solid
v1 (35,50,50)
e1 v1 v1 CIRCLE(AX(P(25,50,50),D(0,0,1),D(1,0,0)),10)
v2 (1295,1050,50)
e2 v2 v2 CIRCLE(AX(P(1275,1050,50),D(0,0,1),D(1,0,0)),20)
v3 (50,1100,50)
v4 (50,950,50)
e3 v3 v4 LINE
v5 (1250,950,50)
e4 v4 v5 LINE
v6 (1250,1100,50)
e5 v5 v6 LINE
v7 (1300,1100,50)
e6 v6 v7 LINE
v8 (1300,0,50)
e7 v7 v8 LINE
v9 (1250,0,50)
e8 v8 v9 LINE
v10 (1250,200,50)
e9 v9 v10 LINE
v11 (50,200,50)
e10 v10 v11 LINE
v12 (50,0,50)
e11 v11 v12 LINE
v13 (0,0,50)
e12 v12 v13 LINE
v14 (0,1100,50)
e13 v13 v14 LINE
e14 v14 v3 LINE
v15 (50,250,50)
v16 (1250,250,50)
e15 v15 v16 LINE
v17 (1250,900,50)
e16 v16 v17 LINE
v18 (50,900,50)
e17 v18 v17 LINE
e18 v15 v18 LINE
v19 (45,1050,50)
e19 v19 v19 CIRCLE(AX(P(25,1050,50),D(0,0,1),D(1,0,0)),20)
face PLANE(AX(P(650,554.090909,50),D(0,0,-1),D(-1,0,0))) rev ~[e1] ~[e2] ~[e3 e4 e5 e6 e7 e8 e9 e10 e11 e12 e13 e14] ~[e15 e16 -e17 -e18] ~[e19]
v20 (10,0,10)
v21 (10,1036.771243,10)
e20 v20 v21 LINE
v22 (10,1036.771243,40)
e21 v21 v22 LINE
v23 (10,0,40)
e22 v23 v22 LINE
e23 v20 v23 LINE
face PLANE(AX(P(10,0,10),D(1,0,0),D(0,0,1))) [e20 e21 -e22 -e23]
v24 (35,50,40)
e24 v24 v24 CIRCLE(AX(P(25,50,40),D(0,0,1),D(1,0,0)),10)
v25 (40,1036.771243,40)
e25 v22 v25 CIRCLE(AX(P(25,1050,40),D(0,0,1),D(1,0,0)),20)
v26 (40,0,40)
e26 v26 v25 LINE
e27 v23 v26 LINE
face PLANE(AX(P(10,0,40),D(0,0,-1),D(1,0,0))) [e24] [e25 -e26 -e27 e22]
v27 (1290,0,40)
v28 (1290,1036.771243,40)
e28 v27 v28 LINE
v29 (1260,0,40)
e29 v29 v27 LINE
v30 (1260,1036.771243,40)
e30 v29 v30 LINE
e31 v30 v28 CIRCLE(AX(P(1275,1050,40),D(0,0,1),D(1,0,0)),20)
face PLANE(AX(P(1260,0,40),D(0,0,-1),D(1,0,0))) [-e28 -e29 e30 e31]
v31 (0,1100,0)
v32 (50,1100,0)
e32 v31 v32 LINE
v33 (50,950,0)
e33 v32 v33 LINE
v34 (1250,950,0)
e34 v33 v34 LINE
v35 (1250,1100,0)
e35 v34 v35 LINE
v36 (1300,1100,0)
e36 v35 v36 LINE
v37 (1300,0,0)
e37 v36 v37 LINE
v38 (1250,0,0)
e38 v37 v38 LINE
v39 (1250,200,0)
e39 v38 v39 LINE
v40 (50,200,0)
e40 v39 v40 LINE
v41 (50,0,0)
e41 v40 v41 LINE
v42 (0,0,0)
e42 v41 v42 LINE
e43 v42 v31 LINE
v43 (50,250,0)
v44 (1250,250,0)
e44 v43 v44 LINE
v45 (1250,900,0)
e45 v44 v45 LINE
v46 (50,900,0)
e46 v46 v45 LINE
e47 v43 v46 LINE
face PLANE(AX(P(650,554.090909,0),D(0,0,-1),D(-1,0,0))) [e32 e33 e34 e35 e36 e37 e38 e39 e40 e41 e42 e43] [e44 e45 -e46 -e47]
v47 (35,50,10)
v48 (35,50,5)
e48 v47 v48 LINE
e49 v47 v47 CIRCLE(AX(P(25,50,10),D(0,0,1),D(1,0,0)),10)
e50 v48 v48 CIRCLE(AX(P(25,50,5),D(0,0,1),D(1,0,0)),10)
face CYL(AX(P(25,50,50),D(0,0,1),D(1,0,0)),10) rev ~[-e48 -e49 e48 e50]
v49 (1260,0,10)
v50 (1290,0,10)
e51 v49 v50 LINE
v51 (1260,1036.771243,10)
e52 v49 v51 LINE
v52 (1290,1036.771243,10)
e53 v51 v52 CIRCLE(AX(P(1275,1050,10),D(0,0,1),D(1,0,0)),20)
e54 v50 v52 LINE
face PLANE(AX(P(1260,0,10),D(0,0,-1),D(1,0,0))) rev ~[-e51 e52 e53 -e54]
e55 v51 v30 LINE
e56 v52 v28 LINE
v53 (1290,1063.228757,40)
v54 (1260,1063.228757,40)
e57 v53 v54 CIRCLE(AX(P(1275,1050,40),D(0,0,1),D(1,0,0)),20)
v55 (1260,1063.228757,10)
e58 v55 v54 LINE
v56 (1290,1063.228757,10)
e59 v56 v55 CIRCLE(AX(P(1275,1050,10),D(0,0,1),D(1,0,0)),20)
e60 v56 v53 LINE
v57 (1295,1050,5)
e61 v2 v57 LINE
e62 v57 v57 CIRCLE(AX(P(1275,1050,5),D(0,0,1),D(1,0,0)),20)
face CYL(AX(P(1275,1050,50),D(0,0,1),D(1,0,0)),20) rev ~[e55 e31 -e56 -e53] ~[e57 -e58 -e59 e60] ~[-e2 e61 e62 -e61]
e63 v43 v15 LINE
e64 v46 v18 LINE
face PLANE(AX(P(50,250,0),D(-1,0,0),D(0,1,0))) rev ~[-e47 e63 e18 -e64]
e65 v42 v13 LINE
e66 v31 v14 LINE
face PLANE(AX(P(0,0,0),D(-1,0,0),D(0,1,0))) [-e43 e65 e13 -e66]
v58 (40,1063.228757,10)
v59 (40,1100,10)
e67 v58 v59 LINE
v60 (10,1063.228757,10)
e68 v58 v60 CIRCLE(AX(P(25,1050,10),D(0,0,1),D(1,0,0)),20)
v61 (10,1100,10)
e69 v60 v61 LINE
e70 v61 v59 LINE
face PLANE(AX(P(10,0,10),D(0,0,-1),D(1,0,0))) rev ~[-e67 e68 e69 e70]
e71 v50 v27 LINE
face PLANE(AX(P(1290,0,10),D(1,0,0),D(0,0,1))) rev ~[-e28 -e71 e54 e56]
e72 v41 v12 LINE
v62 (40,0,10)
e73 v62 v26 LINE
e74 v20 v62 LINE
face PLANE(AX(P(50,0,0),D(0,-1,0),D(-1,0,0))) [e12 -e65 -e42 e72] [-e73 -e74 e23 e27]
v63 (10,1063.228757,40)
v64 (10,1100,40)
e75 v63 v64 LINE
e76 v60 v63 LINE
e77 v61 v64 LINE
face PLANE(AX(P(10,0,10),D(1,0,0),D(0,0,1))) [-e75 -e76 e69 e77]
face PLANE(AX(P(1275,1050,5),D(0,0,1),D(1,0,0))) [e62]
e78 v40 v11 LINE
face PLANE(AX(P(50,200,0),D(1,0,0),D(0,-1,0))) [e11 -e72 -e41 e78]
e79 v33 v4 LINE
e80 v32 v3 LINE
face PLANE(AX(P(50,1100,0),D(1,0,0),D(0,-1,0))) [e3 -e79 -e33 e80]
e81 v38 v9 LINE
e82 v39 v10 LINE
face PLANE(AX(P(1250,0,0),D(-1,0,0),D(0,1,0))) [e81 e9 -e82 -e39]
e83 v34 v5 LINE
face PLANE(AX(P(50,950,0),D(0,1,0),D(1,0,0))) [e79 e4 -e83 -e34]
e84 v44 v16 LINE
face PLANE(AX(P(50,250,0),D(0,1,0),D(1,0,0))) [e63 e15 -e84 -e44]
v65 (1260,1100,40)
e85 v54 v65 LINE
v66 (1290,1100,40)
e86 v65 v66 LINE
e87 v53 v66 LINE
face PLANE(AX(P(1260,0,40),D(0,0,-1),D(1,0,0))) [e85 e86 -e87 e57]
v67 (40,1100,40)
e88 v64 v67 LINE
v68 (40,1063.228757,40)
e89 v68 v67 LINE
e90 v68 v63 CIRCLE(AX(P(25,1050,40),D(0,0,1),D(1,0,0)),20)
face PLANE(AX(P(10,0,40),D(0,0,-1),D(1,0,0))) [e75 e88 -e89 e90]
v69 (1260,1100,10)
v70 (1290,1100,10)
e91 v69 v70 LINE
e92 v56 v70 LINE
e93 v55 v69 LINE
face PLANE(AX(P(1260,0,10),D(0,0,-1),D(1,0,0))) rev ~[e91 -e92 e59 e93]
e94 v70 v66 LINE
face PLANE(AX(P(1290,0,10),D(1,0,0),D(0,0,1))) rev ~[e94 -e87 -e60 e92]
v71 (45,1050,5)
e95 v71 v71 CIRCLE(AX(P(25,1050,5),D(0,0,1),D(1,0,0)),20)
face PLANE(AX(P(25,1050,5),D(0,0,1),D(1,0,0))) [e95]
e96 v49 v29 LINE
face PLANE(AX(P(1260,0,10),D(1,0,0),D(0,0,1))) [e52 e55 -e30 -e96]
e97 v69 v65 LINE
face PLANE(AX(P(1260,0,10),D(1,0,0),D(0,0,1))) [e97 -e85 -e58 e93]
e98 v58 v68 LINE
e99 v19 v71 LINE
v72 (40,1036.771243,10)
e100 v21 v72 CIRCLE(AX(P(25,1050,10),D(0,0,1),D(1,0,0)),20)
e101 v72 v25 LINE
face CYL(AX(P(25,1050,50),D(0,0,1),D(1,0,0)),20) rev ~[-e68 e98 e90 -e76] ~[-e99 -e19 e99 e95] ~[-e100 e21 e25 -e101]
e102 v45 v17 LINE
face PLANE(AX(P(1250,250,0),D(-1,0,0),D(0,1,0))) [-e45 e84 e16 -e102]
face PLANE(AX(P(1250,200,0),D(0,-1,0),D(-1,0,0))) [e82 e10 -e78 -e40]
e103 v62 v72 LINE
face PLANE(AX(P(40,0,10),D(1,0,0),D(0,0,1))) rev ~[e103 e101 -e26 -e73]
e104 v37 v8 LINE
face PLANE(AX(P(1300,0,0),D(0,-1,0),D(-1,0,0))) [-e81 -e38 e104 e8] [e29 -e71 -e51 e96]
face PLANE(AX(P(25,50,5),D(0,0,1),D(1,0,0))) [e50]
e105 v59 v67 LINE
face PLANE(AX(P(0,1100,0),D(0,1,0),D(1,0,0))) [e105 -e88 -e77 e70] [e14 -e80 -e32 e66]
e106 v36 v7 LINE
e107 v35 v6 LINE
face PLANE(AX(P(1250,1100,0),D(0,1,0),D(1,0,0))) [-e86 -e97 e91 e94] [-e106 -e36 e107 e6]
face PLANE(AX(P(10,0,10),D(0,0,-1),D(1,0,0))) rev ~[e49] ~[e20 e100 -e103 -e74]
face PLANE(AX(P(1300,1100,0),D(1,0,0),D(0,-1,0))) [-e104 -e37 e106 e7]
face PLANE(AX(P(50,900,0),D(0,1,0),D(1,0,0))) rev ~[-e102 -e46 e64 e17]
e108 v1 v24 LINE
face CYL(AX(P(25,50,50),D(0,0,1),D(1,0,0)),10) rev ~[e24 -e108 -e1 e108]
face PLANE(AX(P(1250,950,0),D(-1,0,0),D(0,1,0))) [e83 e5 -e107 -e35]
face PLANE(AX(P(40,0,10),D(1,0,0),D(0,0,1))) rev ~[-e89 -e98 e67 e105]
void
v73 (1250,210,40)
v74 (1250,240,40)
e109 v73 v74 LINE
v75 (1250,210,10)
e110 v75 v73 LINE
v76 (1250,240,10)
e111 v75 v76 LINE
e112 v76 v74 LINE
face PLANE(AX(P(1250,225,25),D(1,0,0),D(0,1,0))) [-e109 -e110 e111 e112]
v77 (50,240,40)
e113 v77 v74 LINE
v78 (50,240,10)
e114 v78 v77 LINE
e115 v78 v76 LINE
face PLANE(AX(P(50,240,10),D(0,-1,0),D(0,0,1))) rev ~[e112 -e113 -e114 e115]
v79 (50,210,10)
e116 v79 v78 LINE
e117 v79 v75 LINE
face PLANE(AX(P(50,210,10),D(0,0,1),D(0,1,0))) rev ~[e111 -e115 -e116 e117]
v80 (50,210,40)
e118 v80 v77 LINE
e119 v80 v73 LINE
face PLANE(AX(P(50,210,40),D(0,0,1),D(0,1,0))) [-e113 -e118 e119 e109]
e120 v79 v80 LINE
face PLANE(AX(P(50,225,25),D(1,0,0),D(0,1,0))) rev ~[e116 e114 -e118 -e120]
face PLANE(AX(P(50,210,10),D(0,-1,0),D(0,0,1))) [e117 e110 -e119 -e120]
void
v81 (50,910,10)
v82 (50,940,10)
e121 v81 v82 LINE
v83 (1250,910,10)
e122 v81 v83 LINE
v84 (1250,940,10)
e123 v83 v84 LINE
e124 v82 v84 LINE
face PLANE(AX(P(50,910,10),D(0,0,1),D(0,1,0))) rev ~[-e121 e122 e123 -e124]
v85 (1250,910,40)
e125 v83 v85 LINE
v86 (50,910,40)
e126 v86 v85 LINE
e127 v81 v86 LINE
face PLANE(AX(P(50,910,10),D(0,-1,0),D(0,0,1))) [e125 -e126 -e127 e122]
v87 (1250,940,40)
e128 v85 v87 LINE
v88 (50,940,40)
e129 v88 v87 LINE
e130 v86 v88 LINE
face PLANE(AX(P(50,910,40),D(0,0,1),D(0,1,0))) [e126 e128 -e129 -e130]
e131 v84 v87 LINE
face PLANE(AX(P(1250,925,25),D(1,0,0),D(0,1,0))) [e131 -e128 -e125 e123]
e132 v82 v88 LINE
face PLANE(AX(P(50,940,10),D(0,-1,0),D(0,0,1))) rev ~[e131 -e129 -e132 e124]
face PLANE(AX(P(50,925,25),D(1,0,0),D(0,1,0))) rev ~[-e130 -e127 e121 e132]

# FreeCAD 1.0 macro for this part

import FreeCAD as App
import Part
import Sketcher
from FreeCAD import Vector
Q = App.Units.Quantity


def add_polygon(sketch, points):
    """Adds a closed chain of lines whose ends are joined by coincident constraints."""
    first, n = sketch.GeometryCount, len(points)
    for a, b in zip(points, points[1:] + points[:1]):
        sketch.addGeometry(Part.LineSegment(App.Vector(*a, 0), App.Vector(*b, 0)), False)
    for i in range(n):
        sketch.addConstraint(Sketcher.Constraint("Coincident", first + i, 2, first + (i + 1) % n, 1))

doc = App.newDocument("Part")
params = doc.addObject("Spreadsheet::Sheet", "Params")
for row, (alias, value) in enumerate([
    ("sketch1_width", "50 mm"),
    ("sketch1_width2", "1200 mm"),
    ("sketch1_height", "1100 mm"),
    ("sketch1_height2", "200 mm"),
    ("sketch1_height3", "150 mm"),
    ("pad1_length", "50 mm"),
    ("sketch2_width", "30 mm"),
    ("pocket1_length", "1100 mm"),
    ("sketch3_width", "30 mm"),
    ("pocket2_length", "1200 mm"),
    ("sketch4_diameter", "40 mm"),
    ("pocket3_length", "45 mm"),
    ("sketch5_diameter", "20 mm"),
    ("pocket4_length", "45 mm"),
], start=1):
    params.set(f"A{row}", alias)
    params.set(f"B{row}", "=" + value)
    params.setAlias(f"B{row}", alias)

body = doc.addObject("PartDesign::Body", "Body")

# Sketch on XY plane
sketch1 = body.newObject("Sketcher::SketchObject", "Sketch")
sketch1.AttachmentSupport = (doc.getObject("XY_Plane"), [""])
sketch1.MapMode = "FlatFace"
add_polygon(sketch1, [(0, 1100), (0, 0), (50, 0), (50, 200), (1250, 200), (1250, 0), (1300, 0), (1300, 1100), (1250, 1100), (1250, 950), (50, 950), (50, 1100)])  # lines 0-11
add_polygon(sketch1, [(50, 250), (50, 900), (1250, 900), (1250, 250)])  # lines 12-15
sketch1.addConstraint([
    Sketcher.Constraint("Vertical", 0),
    Sketcher.Constraint("Horizontal", 1),
    Sketcher.Constraint("Vertical", 2),
    Sketcher.Constraint("Horizontal", 3),
    Sketcher.Constraint("Vertical", 4),
    Sketcher.Constraint("Horizontal", 5),
    Sketcher.Constraint("Vertical", 6),
    Sketcher.Constraint("Horizontal", 7),
    Sketcher.Constraint("Vertical", 8),
    Sketcher.Constraint("Horizontal", 9),
    Sketcher.Constraint("Vertical", 10),
    Sketcher.Constraint("Horizontal", 11),
    Sketcher.Constraint("Vertical", 12),
    Sketcher.Constraint("Horizontal", 13),
    Sketcher.Constraint("Vertical", 14),
    Sketcher.Constraint("Horizontal", 15),
    Sketcher.Constraint("Coincident", 0, 2, -1, 1),
    Sketcher.Constraint("PointOnObject", 4, 2, -1),
    Sketcher.Constraint("Horizontal", 7, 2, 10, 2),
    Sketcher.Constraint("Vertical", 4, 2, 7, 2),
    Sketcher.Constraint("Vertical", 2, 2, 9, 2),
    Sketcher.Constraint("Vertical", 10, 2, 12, 2),
    Sketcher.Constraint("Vertical", 8, 2, 13, 2),
    Sketcher.Constraint("Equal", 1, 5),
    Sketcher.Constraint("DistanceX", 1, 1, 1, 2, Q("50 mm")),
    Sketcher.Constraint("DistanceX", 3, 1, 3, 2, Q("1200 mm")),
    Sketcher.Constraint("DistanceY", 0, 2, 0, 1, Q("1100 mm")),
    Sketcher.Constraint("DistanceY", 2, 1, 2, 2, Q("200 mm")),
    Sketcher.Constraint("DistanceY", 8, 2, 8, 1, Q("150 mm")),
    Sketcher.Constraint("DistanceY", 12, 1, 12, 2, Q("650 mm")),
    Sketcher.Constraint("DistanceY", -1, 1, 12, 2, Q("900 mm")),
])
sketch1.setExpression("Constraints[40]", "Params.sketch1_width")
sketch1.setExpression("Constraints[41]", "Params.sketch1_width2")
sketch1.setExpression("Constraints[42]", "Params.sketch1_height")
sketch1.setExpression("Constraints[43]", "Params.sketch1_height2")
sketch1.setExpression("Constraints[44]", "Params.sketch1_height3")
pad1 = body.newObject("PartDesign::Pad", "Pad")
pad1.Profile = sketch1
pad1.setExpression("Length", "Params.pad1_length")

# Sketch on XZ plane
sketch2 = body.newObject("Sketcher::SketchObject", "Sketch001")
sketch2.AttachmentSupport = (doc.getObject("XZ_Plane"), [""])
sketch2.MapMode = "FlatFace"
add_polygon(sketch2, [(10, 40), (10, 10), (40, 10), (40, 40)])  # lines 0-3
add_polygon(sketch2, [(1260, 40), (1260, 10), (1290, 10), (1290, 40)])  # lines 4-7
sketch2.addConstraint([
    Sketcher.Constraint("Vertical", 0),
    Sketcher.Constraint("Horizontal", 1),
    Sketcher.Constraint("Vertical", 2),
    Sketcher.Constraint("Horizontal", 3),
    Sketcher.Constraint("Vertical", 4),
    Sketcher.Constraint("Horizontal", 5),
    Sketcher.Constraint("Vertical", 6),
    Sketcher.Constraint("Horizontal", 7),
    Sketcher.Constraint("Horizontal", 1, 2, 4, 2),
    Sketcher.Constraint("Horizontal", 3, 2, 6, 2),
    Sketcher.Constraint("Equal", 3, 5),
    Sketcher.Constraint("Equal", 7, 0),
    Sketcher.Constraint("DistanceX", 1, 1, 1, 2, Q("30 mm")),
    Sketcher.Constraint("DistanceX", -1, 1, 0, 2, Q("10 mm")),
    Sketcher.Constraint("DistanceY", -1, 1, 0, 2, Q("10 mm")),
    Sketcher.Constraint("DistanceX", -1, 1, 4, 2, Q("1260 mm")),
])
sketch2.setExpression("Constraints[20]", "Params.sketch2_width")
pocket1 = body.newObject("PartDesign::Pocket", "Pocket")
pocket1.Profile = sketch2
pocket1.setExpression("Length", "Params.pocket1_length")

# Sketch on YZ plane
sketch3 = body.newObject("Sketcher::SketchObject", "Sketch002")
sketch3.AttachmentSupport = (doc.getObject("YZ_Plane"), [""])
sketch3.MapMode = "FlatFace"
sketch3.AttachmentOffset = App.Placement(Vector(0, 0, 50), App.Rotation())
add_polygon(sketch3, [(210, 40), (210, 10), (240, 10), (240, 40)])  # lines 0-3
add_polygon(sketch3, [(910, 40), (910, 10), (940, 10), (940, 40)])  # lines 4-7
sketch3.addConstraint([
    Sketcher.Constraint("Vertical", 0),
    Sketcher.Constraint("Horizontal", 1),
    Sketcher.Constraint("Vertical", 2),
    Sketcher.Constraint("Horizontal", 3),
    Sketcher.Constraint("Vertical", 4),
    Sketcher.Constraint("Horizontal", 5),
    Sketcher.Constraint("Vertical", 6),
    Sketcher.Constraint("Horizontal", 7),
    Sketcher.Constraint("Horizontal", 1, 2, 4, 2),
    Sketcher.Constraint("Horizontal", 3, 2, 6, 2),
    Sketcher.Constraint("Equal", 3, 5),
    Sketcher.Constraint("Equal", 7, 0),
    Sketcher.Constraint("DistanceX", 1, 1, 1, 2, Q("30 mm")),
    Sketcher.Constraint("DistanceX", -1, 1, 0, 2, Q("210 mm")),
    Sketcher.Constraint("DistanceY", -1, 1, 0, 2, Q("10 mm")),
    Sketcher.Constraint("DistanceX", -1, 1, 4, 2, Q("910 mm")),
])
sketch3.setExpression("Constraints[20]", "Params.sketch3_width")
pocket2 = body.newObject("PartDesign::Pocket", "Pocket001")
pocket2.Profile = sketch3
pocket2.setExpression("Length", "Params.pocket2_length")
pocket2.Reversed = True

# Sketch on XY plane
sketch4 = body.newObject("Sketcher::SketchObject", "Sketch003")
sketch4.AttachmentSupport = (doc.getObject("XY_Plane"), [""])
sketch4.MapMode = "FlatFace"
sketch4.AttachmentOffset = App.Placement(Vector(0, 0, 50), App.Rotation())
sketch4.addGeometry([
    Part.Circle(Vector(25, 1050, 0), Vector(0, 0, 1), 20),
    Part.Circle(Vector(1275, 1050, 0), Vector(0, 0, 1), 20),
], False)
sketch4.addConstraint([
    Sketcher.Constraint("Equal", 0, 1),
    Sketcher.Constraint("Horizontal", 0, 3, 1, 3),
    Sketcher.Constraint("Diameter", 0, Q("40 mm")),
    Sketcher.Constraint("DistanceX", -1, 1, 0, 3, Q("25 mm")),
    Sketcher.Constraint("DistanceY", -1, 1, 0, 3, Q("1050 mm")),
    Sketcher.Constraint("DistanceX", -1, 1, 1, 3, Q("1275 mm")),
])
sketch4.setExpression("Constraints[2]", "Params.sketch4_diameter")
pocket3 = body.newObject("PartDesign::Pocket", "Pocket002")
pocket3.Profile = sketch4
pocket3.setExpression("Length", "Params.pocket3_length")

# Sketch on XY plane
sketch5 = body.newObject("Sketcher::SketchObject", "Sketch004")
sketch5.AttachmentSupport = (doc.getObject("XY_Plane"), [""])
sketch5.MapMode = "FlatFace"
sketch5.AttachmentOffset = App.Placement(Vector(0, 0, 50), App.Rotation())
sketch5.addGeometry(Part.Circle(Vector(25, 50, 0), Vector(0, 0, 1), 10), False)
sketch5.addConstraint([
    Sketcher.Constraint("Diameter", 0, Q("20 mm")),
    Sketcher.Constraint("DistanceX", -1, 1, 0, 3, Q("25 mm")),
    Sketcher.Constraint("DistanceY", -1, 1, 0, 3, Q("50 mm")),
])
sketch5.setExpression("Constraints[0]", "Params.sketch5_diameter")
pocket4 = body.newObject("PartDesign::Pocket", "Pocket003")
pocket4.Profile = sketch5
pocket4.setExpression("Length", "Params.pocket4_length")

doc.recompute()
